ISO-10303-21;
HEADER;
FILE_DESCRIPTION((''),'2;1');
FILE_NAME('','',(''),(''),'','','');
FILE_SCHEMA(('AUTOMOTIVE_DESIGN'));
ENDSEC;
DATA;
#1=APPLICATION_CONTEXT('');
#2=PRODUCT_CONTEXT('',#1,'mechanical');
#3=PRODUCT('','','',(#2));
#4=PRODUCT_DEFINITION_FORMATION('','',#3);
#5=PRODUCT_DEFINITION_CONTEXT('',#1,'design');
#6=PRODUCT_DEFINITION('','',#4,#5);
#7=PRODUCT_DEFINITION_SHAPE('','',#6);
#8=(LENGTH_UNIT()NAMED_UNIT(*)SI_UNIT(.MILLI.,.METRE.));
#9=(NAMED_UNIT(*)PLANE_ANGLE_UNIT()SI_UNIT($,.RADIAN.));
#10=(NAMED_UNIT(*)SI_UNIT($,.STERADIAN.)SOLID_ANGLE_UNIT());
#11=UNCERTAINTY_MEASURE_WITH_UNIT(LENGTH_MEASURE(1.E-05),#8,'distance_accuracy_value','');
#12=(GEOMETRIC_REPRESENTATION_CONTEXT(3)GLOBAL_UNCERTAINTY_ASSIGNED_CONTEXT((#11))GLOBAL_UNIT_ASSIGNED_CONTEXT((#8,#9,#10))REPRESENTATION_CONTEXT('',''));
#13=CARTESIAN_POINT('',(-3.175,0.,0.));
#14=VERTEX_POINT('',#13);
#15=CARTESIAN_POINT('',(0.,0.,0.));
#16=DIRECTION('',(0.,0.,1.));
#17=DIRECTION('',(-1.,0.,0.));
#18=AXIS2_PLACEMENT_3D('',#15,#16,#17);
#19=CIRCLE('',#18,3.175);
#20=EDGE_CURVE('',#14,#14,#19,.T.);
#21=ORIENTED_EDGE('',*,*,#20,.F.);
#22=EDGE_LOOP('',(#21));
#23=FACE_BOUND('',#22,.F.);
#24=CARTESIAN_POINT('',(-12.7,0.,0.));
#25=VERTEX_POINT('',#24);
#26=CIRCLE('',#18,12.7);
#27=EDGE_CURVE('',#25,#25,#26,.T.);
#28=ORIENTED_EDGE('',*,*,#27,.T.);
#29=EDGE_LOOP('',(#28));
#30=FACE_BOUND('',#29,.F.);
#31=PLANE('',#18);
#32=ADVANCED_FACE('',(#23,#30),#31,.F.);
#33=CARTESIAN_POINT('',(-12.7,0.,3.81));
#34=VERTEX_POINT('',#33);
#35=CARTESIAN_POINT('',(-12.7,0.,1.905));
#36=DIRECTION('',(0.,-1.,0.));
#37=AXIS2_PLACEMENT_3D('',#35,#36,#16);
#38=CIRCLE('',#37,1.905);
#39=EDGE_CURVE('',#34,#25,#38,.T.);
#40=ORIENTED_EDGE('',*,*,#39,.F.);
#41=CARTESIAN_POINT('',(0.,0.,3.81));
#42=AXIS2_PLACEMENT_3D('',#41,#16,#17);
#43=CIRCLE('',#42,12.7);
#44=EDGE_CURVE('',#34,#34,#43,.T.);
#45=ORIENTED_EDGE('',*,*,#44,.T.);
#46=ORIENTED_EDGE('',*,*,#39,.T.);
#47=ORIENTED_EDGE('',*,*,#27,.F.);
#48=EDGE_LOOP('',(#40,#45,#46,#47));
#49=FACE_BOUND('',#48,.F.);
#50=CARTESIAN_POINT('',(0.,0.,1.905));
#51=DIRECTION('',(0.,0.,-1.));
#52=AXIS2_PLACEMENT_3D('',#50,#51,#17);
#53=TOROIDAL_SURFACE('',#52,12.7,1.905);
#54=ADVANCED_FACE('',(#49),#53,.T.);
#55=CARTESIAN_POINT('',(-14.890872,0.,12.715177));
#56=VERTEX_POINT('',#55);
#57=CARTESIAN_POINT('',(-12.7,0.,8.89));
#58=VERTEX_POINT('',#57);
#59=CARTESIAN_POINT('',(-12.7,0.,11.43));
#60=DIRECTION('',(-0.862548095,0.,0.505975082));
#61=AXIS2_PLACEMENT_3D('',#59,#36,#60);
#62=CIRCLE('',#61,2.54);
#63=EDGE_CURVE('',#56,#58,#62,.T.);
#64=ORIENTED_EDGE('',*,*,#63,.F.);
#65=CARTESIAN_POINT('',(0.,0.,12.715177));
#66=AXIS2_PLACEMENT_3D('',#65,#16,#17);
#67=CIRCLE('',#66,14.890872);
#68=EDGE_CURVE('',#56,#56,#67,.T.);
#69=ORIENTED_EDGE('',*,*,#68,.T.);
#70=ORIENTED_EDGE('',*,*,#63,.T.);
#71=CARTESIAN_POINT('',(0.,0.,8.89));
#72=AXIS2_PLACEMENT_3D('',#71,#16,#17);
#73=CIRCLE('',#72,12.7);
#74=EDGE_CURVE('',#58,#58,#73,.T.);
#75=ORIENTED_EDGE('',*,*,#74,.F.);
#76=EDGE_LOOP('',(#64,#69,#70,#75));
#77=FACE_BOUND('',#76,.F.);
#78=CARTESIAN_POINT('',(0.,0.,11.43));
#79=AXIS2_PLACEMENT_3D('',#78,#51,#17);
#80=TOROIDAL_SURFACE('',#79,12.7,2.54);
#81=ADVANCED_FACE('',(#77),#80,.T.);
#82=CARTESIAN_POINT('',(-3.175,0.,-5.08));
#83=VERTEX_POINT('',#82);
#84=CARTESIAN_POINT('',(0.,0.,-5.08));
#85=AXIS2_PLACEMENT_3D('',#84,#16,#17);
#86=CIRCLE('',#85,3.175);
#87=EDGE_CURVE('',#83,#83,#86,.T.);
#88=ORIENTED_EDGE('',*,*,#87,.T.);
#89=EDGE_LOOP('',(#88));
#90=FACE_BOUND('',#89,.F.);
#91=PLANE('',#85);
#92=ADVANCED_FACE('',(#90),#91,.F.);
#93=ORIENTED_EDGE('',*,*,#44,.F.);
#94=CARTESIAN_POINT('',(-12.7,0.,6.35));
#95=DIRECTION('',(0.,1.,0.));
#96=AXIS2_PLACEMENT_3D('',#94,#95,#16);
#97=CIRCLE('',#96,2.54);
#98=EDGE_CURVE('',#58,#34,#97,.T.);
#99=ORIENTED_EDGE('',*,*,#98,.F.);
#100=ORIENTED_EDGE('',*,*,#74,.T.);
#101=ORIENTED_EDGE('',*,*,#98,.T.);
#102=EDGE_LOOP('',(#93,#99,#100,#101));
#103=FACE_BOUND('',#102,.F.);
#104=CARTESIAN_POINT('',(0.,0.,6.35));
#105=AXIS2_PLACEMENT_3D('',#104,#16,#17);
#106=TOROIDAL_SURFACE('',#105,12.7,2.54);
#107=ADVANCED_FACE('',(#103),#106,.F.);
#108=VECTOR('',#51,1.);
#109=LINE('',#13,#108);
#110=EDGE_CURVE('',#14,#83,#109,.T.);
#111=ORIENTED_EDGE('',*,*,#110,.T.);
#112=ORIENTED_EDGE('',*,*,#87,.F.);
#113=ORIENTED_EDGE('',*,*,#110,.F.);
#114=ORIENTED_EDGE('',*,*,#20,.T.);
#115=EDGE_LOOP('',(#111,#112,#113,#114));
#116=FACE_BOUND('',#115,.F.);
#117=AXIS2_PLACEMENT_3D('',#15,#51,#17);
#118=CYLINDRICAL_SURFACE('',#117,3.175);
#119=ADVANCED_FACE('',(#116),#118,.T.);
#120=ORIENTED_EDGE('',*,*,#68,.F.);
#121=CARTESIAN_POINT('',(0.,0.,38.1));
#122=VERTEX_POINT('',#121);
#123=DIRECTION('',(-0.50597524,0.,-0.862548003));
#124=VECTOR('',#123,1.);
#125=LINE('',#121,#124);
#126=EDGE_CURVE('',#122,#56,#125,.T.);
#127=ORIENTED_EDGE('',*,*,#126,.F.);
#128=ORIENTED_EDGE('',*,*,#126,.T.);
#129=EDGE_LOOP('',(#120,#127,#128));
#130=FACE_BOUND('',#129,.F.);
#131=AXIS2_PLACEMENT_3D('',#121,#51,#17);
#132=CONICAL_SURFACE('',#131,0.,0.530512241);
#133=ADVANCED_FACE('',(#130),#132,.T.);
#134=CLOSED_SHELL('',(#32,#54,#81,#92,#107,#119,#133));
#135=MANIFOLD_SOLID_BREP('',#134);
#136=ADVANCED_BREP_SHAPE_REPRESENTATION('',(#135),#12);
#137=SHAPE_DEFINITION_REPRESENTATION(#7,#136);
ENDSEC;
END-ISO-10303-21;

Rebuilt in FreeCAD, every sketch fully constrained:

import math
import FreeCAD as App
import Part
import Sketcher
Q = App.Units.Quantity

doc = App.newDocument("Part")
body = doc.addObject("PartDesign::Body", "Body")

# Sketch on XZ plane
sketch1 = body.newObject("Sketcher::SketchObject", "Sketch")
sketch1.AttachmentSupport = (doc.getObject("XZ_Plane"), [""])
sketch1.MapMode = "FlatFace"
sketch1.addGeometry([
    Part.LineSegment(App.Vector(-3.175, -5.08, 0), App.Vector(0, -5.08, 0)),  # 0
    Part.LineSegment(App.Vector(0, -5.08, 0), App.Vector(0, 38.1, 0)),  # 1
    Part.LineSegment(App.Vector(0, 38.1, 0), App.Vector(-14.890872, 12.715177, 0)),  # 2
    Part.ArcOfCircle(Part.Circle(App.Vector(-12.7, 11.43, 0), App.Vector(0, 0, 1), 2.54), math.radians(149.603898), math.radians(269.999993)),  # 3
    Part.ArcOfCircle(Part.Circle(App.Vector(-12.7, 6.35, 0), App.Vector(0, 0, 1), 2.54), math.radians(-90), math.radians(90)),  # 4
    Part.ArcOfCircle(Part.Circle(App.Vector(-12.7, 1.905, 0), App.Vector(0, 0, 1), 1.905), math.radians(90), math.radians(270)),  # 5
    Part.LineSegment(App.Vector(-12.7, 0, 0), App.Vector(-3.175, 0, 0)),  # 6
    Part.LineSegment(App.Vector(-3.175, 0, 0), App.Vector(-3.175, -5.08, 0)),  # 7
], False)
sketch1.addConstraint([
    Sketcher.Constraint("Coincident", 0, 2, 1, 1),
    Sketcher.Constraint("Coincident", 1, 2, 2, 1),
    Sketcher.Constraint("Tangent", 2, 2, 3, 1),
    Sketcher.Constraint("Tangent", 3, 2, 4, 2),
    Sketcher.Constraint("Tangent", 4, 1, 5, 1),
    Sketcher.Constraint("Tangent", 5, 2, 6, 1),
    Sketcher.Constraint("Coincident", 6, 2, 7, 1),
    Sketcher.Constraint("Coincident", 7, 2, 0, 1),
    Sketcher.Constraint("Horizontal", 0),
    Sketcher.Constraint("Vertical", 1),
    Sketcher.Constraint("Horizontal", 6),
    Sketcher.Constraint("Vertical", 7),
    Sketcher.Constraint("Equal", 3, 4),
    Sketcher.Constraint("PointOnObject", 0, 2, -2),
    Sketcher.Constraint("PointOnObject", 5, 2, -1),
    Sketcher.Constraint("Vertical", 3, 3, 4, 3),
    Sketcher.Constraint("Vertical", 4, 3, 5, 3),
    Sketcher.Constraint("Radius", 3, Q("0.1 in")),
    Sketcher.Constraint("DistanceY", 1, 1, 1, 2, Q("1.7 in")),
    Sketcher.Constraint("DistanceY", 7, 2, 7, 1, Q("0.2 in")),
    Sketcher.Constraint("Radius", 5, Q("0.075 in")),
    Sketcher.Constraint("DistanceX", 3, 3, -1, 1, Q("0.5 in")),
    Sketcher.Constraint("DistanceX", 0, 1, 0, 2, Q("0.125 in")),
])
revolution = body.newObject("PartDesign::Revolution", "Revolution")
revolution.Profile = sketch1
revolution.ReferenceAxis = (sketch1, ["V_Axis"])
revolution.Angle = 360

doc.recompute()
